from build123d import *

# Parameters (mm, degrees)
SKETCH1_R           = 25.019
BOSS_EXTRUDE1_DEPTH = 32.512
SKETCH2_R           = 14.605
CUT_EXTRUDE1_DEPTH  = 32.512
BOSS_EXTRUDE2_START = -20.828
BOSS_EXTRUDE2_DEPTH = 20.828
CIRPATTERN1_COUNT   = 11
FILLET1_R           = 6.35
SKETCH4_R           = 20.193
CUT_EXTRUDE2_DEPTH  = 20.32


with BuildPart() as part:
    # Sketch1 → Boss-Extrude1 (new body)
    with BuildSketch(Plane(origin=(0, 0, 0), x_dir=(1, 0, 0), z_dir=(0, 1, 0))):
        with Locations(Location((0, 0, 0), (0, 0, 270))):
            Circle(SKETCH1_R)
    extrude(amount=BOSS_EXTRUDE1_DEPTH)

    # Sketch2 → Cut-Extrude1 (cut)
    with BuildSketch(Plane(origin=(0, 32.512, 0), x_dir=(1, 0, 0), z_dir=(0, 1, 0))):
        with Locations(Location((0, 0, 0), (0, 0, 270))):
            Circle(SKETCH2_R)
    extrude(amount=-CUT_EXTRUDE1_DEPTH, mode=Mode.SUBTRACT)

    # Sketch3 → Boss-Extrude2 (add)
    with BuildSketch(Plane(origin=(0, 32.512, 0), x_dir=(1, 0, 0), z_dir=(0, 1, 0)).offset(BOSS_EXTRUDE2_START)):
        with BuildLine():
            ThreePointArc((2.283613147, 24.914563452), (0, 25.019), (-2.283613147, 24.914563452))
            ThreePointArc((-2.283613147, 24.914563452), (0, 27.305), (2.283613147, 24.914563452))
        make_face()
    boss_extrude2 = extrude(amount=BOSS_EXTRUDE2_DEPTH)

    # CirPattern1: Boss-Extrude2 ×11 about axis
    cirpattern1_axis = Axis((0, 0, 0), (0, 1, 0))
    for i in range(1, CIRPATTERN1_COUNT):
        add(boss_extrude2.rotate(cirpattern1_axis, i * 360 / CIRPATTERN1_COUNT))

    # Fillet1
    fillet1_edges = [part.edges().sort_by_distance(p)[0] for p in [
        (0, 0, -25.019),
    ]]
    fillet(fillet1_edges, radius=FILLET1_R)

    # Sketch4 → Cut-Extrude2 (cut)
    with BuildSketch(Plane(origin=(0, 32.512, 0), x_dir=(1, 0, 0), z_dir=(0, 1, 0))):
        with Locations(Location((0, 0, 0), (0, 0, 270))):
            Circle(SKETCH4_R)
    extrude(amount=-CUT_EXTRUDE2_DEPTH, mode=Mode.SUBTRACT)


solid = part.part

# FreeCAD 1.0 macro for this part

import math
import FreeCAD as App
import Part
import Sketcher
Q = App.Units.Quantity


def edges_at(feature, points):
    """Names of the edges that pass closest to the given points."""
    edges = feature.Shape.Edges
    near = lambda p: min(range(len(edges)), key=lambda i: edges[i].distToShape(Part.Vertex(*p))[0])
    return sorted({f"Edge{near(p) + 1}" for p in points})

doc = App.newDocument("Part")
body = doc.addObject("PartDesign::Body", "Body")

# Sketch on XZ plane
sketch1 = body.newObject("Sketcher::SketchObject", "Sketch")
sketch1.AttachmentSupport = (doc.getObject("XZ_Plane"), [""])
sketch1.MapMode = "FlatFace"
sketch1.addGeometry(Part.Circle(App.Vector(0, 0, 0), App.Vector(0, 0, 1), 25), False)
sketch1.addConstraint([
    Sketcher.Constraint("Coincident", 0, 3, -1, 1),
    Sketcher.Constraint("Diameter", 0, Q("1.97 in")),
])
pad1 = body.newObject("PartDesign::Pad", "Pad")
pad1.Profile = sketch1
pad1.Length = Q("1.28 in")
pad1.Reversed = True

# Sketch on XZ plane
sketch2 = body.newObject("Sketcher::SketchObject", "Sketch001")
sketch2.AttachmentSupport = (doc.getObject("XZ_Plane"), [""])
sketch2.MapMode = "FlatFace"
sketch2.AttachmentOffset = App.Placement(App.Vector(0, 0, -1.28 * 25.4), App.Rotation())
sketch2.addGeometry(Part.Circle(App.Vector(0, 0, 0), App.Vector(0, 0, 1), 15), False)
sketch2.addConstraint([
    Sketcher.Constraint("Coincident", 0, 3, -1, 1),
    Sketcher.Constraint("Diameter", 0, Q("1.15 in")),
])
pocket1 = body.newObject("PartDesign::Pocket", "Pocket")
pocket1.Profile = sketch2
pocket1.Length = Q("1.28 in")
pocket1.Reversed = True

# Sketch on XZ plane
sketch3 = body.newObject("Sketcher::SketchObject", "Sketch002")
sketch3.AttachmentSupport = (doc.getObject("XZ_Plane"), [""])
sketch3.MapMode = "FlatFace"
sketch3.AttachmentOffset = App.Placement(App.Vector(0, 0, -0.46 * 25.4), App.Rotation())
sketch3.addGeometry([
    Part.ArcOfCircle(Part.Circle(App.Vector(0, 0, 0), App.Vector(0, 0, 1), 25), math.radians(-95.24), math.radians(-84.76)),
    Part.ArcOfCircle(Part.Circle(App.Vector(0, -25, 0), App.Vector(0, 0, 1), 2.3), math.radians(177), math.radians(363)),
], False)
sketch3.addConstraint([
    Sketcher.Constraint("Coincident", 0, 1, 1, 1),
    Sketcher.Constraint("Coincident", 1, 2, 0, 2),
    Sketcher.Constraint("Coincident", 0, 3, -1, 1),
    Sketcher.Constraint("PointOnObject", 1, 3, -2),
    Sketcher.Constraint("Radius", 1, Q("0.09 in")),
    Sketcher.Constraint("Radius", 0, Q("0.985 in")),
    Sketcher.Constraint("DistanceY", 1, 3, -1, 1, Q("0.985 in")),
])
pad2 = body.newObject("PartDesign::Pad", "Pad001")
pad2.Profile = sketch3
pad2.Length = Q("0.82 in")
pad2.Reversed = True
doc.recompute()

polarpattern = body.newObject("PartDesign::PolarPattern", "PolarPattern")
polarpattern.Originals = [pad2]
polarpattern.Axis = (doc.getObject("Y_Axis"), [""])
polarpattern.Angle = 360
polarpattern.Occurrences = 11
body.Tip = polarpattern
doc.recompute()

fillet = body.newObject("PartDesign::Fillet", "Fillet")
fillet.Base = (polarpattern, edges_at(polarpattern, [(0, 0, -25.019)]))
fillet.Radius = Q("0.25 in")

# Sketch on XZ plane
sketch4 = body.newObject("Sketcher::SketchObject", "Sketch003")
sketch4.AttachmentSupport = (doc.getObject("XZ_Plane"), [""])
sketch4.MapMode = "FlatFace"
sketch4.AttachmentOffset = App.Placement(App.Vector(0, 0, -1.28 * 25.4), App.Rotation())
sketch4.addGeometry(Part.Circle(App.Vector(0, 0, 0), App.Vector(0, 0, 1), 20), False)
sketch4.addConstraint([
    Sketcher.Constraint("Coincident", 0, 3, -1, 1),
    Sketcher.Constraint("Diameter", 0, Q("1.59 in")),
])
pocket2 = body.newObject("PartDesign::Pocket", "Pocket001")
pocket2.Profile = sketch4
pocket2.Length = Q("0.8 in")
pocket2.Reversed = True

doc.recompute()
